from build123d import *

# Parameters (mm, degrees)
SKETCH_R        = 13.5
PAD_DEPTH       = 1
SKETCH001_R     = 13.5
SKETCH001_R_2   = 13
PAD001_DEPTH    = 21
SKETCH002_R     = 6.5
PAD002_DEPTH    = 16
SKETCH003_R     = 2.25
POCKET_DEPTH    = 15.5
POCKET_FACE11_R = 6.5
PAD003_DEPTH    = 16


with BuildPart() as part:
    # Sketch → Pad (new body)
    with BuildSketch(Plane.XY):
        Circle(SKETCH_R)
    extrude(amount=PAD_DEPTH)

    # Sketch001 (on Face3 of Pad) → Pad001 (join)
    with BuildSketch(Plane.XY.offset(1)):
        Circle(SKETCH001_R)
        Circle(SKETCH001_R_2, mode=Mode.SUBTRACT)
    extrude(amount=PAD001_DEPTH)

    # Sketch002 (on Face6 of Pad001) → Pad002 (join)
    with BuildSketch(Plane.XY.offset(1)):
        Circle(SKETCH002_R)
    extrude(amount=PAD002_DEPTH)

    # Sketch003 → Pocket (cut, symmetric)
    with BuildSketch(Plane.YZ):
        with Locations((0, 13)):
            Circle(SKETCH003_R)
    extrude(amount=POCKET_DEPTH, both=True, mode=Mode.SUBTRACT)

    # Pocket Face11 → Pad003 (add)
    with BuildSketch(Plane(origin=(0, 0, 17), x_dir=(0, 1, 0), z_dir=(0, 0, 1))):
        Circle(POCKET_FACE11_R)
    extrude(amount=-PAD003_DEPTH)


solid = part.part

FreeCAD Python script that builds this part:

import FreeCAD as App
import Part
import Sketcher

doc = App.newDocument("Part")
body = doc.addObject("PartDesign::Body", "Body")

sketch1 = body.newObject("Sketcher::SketchObject", "Sketch")
sketch1.AttachmentSupport = (doc.getObject("XY_Plane"), [""])
sketch1.MapMode = "FlatFace"
sketch1.addGeometry(Part.Circle(App.Vector(0, 0, 0), App.Vector(0, 0, 1), 14), False)
sketch1.addConstraint(Sketcher.Constraint("Coincident", 0, 3, -1, 1))
sketch1.addConstraint(Sketcher.Constraint("Diameter", 0, 27.0))
pad1 = body.newObject("PartDesign::Pad", "Pad")
pad1.Profile = sketch1
pad1.Length = 1

sketch2 = body.newObject("Sketcher::SketchObject", "Sketch001")
sketch2.AttachmentSupport = (doc.getObject("XY_Plane"), [""])
sketch2.MapMode = "FlatFace"
sketch2.AttachmentOffset = App.Placement(App.Vector(0, 0, 1), App.Rotation())
sketch2.addGeometry(Part.Circle(App.Vector(0, 0, 0), App.Vector(0, 0, 1), 14), False)
sketch2.addGeometry(Part.Circle(App.Vector(0, 0, 0), App.Vector(0, 0, 1), 13), False)
sketch2.addConstraint(Sketcher.Constraint("Coincident", 0, 3, -1, 1))
sketch2.addConstraint(Sketcher.Constraint("Coincident", 1, 3, -1, 1))
sketch2.addConstraint(Sketcher.Constraint("Diameter", 0, 27.0))
sketch2.addConstraint(Sketcher.Constraint("Diameter", 1, 26.0))
pad2 = body.newObject("PartDesign::Pad", "Pad001")
pad2.Profile = sketch2
pad2.Length = 21

sketch3 = body.newObject("Sketcher::SketchObject", "Sketch002")
sketch3.AttachmentSupport = (doc.getObject("XY_Plane"), [""])
sketch3.MapMode = "FlatFace"
sketch3.AttachmentOffset = App.Placement(App.Vector(0, 0, 1), App.Rotation())
sketch3.addGeometry(Part.Circle(App.Vector(0, 0, 0), App.Vector(0, 0, 1), 6), False)
sketch3.addConstraint(Sketcher.Constraint("Coincident", 0, 3, -1, 1))
sketch3.addConstraint(Sketcher.Constraint("Diameter", 0, 13.0))
pad3 = body.newObject("PartDesign::Pad", "Pad002")
pad3.Profile = sketch3
pad3.Length = 16

sketch4 = body.newObject("Sketcher::SketchObject", "Sketch003")
sketch4.AttachmentSupport = (doc.getObject("YZ_Plane"), [""])
sketch4.MapMode = "FlatFace"
sketch4.addGeometry(Part.Circle(App.Vector(0, 13, 0), App.Vector(0, 0, 1), 2.2), False)
sketch4.addConstraint(Sketcher.Constraint("PointOnObject", 0, 3, -2))
sketch4.addConstraint(Sketcher.Constraint("Diameter", 0, 4.5))
sketch4.addConstraint(Sketcher.Constraint("DistanceY", -1, 1, 0, 3, 13.0))
pocket1 = body.newObject("PartDesign::Pocket", "Pocket")
pocket1.Profile = sketch4
pocket1.Length = 31
pocket1.Midplane = True

sketch5 = body.newObject("Sketcher::SketchObject", "Sketch004")
sketch5.AttachmentSupport = (doc.getObject("XY_Plane"), [""])
sketch5.MapMode = "FlatFace"
sketch5.AttachmentOffset = App.Placement(App.Vector(0, 0, 17), App.Rotation())
sketch5.addGeometry(Part.Circle(App.Vector(0, 0, 0), App.Vector(0, 0, 1), 6), False)
sketch5.addConstraint(Sketcher.Constraint("Coincident", 0, 3, -1, 1))
sketch5.addConstraint(Sketcher.Constraint("Diameter", 0, 13.0))
pad4 = body.newObject("PartDesign::Pad", "Pad003")
pad4.Profile = sketch5
pad4.Length = 16
pad4.Reversed = True

doc.recompute()
